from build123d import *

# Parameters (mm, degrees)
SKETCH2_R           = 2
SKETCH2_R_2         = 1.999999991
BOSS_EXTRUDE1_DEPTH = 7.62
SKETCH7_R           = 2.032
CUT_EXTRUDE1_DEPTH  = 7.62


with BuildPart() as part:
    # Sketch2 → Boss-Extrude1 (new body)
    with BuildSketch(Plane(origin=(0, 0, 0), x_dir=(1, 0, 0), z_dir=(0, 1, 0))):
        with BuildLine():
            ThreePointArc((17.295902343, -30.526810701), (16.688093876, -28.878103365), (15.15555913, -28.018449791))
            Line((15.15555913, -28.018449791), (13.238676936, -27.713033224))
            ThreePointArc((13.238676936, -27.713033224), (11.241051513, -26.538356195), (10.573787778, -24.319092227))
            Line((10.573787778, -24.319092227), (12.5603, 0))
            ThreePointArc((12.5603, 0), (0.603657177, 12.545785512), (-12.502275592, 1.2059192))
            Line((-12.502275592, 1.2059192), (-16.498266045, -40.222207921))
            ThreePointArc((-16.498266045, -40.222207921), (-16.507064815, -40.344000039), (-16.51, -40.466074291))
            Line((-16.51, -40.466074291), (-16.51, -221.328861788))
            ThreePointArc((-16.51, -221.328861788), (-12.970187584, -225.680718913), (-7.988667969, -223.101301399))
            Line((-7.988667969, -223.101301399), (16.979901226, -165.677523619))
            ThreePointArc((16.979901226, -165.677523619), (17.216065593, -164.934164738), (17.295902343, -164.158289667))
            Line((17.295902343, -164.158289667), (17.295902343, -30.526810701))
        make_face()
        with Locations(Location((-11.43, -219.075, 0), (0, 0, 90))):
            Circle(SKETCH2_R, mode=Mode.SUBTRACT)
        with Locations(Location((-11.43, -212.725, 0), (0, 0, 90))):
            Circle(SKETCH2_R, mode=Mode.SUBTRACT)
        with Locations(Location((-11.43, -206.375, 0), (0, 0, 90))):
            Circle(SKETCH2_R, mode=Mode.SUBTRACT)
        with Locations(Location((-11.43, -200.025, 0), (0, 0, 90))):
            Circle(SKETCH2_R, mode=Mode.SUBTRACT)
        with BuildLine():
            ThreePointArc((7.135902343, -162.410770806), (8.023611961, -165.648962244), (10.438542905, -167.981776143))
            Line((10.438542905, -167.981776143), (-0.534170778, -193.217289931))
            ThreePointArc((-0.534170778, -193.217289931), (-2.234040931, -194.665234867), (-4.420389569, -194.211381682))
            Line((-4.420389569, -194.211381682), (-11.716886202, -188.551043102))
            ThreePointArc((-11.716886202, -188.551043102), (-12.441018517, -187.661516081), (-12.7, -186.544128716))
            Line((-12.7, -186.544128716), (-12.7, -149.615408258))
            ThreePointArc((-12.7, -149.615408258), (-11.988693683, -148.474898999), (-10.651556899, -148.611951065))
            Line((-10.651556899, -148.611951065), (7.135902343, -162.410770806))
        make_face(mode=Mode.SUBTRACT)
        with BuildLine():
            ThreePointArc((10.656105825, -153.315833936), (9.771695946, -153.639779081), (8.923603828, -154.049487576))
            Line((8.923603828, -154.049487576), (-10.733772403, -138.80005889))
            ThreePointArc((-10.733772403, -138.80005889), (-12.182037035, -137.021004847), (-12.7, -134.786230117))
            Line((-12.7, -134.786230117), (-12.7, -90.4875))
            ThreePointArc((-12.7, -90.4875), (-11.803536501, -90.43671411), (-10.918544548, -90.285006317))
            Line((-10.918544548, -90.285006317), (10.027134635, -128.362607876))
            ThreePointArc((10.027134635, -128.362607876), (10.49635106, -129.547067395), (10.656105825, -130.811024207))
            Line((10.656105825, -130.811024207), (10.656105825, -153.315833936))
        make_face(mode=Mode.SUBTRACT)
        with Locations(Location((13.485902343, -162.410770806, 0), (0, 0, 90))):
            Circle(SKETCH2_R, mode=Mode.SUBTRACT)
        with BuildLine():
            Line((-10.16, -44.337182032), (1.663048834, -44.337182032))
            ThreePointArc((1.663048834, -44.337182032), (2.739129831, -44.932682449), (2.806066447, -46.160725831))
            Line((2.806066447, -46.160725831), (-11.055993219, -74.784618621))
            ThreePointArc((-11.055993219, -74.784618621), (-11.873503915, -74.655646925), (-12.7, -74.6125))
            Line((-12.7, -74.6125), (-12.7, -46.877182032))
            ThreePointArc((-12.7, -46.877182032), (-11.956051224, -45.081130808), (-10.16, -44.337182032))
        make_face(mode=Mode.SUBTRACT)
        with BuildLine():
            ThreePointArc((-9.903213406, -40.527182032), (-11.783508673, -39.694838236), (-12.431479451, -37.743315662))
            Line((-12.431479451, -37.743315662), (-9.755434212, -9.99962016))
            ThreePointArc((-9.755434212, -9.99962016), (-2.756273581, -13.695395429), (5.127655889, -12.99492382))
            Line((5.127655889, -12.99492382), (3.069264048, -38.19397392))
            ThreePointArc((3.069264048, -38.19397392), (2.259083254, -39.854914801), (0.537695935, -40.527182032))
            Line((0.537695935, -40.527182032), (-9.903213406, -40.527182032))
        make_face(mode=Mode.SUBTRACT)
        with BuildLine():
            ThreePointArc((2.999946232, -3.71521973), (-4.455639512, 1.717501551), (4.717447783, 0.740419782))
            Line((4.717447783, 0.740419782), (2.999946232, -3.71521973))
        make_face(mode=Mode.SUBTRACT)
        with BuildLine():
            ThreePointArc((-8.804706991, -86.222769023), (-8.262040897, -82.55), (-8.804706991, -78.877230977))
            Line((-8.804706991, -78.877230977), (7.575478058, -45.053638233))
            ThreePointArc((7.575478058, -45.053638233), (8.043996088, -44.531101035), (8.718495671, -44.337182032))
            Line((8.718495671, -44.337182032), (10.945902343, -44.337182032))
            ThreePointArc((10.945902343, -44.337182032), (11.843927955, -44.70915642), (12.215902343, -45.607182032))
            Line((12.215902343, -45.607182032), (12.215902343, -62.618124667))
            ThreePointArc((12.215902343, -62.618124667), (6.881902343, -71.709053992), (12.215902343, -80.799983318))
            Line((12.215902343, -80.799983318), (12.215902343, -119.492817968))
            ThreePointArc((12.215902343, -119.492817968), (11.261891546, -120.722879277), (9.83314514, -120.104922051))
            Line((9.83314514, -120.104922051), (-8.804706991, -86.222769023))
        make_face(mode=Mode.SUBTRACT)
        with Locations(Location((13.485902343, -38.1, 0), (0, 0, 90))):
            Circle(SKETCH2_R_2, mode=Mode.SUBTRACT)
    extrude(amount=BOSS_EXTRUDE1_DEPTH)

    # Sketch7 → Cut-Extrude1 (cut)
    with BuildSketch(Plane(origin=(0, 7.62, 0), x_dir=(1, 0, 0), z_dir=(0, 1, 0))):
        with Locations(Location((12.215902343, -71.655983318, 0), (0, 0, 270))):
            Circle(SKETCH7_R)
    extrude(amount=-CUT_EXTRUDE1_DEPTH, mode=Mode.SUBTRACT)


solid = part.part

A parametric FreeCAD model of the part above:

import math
import FreeCAD as App
import Part
import Sketcher
from FreeCAD import Vector
Q = App.Units.Quantity

doc = App.newDocument("Part")
body = doc.addObject("PartDesign::Body", "Body")

sketch1 = body.newObject("Sketcher::SketchObject", "Sketch")
sketch1.AttachmentSupport = (doc.getObject("XZ_Plane"), [""])
sketch1.MapMode = "FlatFace"
sketch1.addGeometry([
    Part.ArcOfCircle(Part.Circle(Vector(14.76, 30.53, 0), Vector(0, 0, 1), 2.54), math.radians(-81), math.radians(0)),
    Part.LineSegment(Vector(15.16, 28.02, 0), Vector(13.24, 27.71, 0)),
    Part.ArcOfCircle(Part.Circle(Vector(13.74, 24.58, 0), Vector(0, 0, 1), 3.18), math.radians(99), math.radians(185)),
    Part.LineSegment(Vector(10.57, 24.32, 0), Vector(12.56, 0, 0)),
    Part.ArcOfCircle(Part.Circle(Vector(0, 0, 0), Vector(0, 0, 1), 12.56), math.radians(-174), math.radians(0)),
    Part.LineSegment(Vector(-12.5, -1.21, 0), Vector(-16.5, 40.22, 0)),
    Part.ArcOfCircle(Part.Circle(Vector(-13.97, 40.47, 0), Vector(0, 0, 1), 2.54), math.radians(-180), math.radians(-174.49)),
    Part.LineSegment(Vector(-16.51, 40.47, 0), Vector(-16.51, 221.33, 0)),
    Part.ArcOfCircle(Part.Circle(Vector(-12.06, 221.33, 0), Vector(0, 0, 1), 4.45), math.radians(23), math.radians(180)),
    Part.LineSegment(Vector(-7.99, 223.1, 0), Vector(16.98, 165.68, 0)),
    Part.ArcOfCircle(Part.Circle(Vector(13.49, 164.16, 0), Vector(0, 0, 1), 3.81), math.radians(0), math.radians(24)),
    Part.LineSegment(Vector(17.3, 164.16, 0), Vector(17.3, 30.53, 0)),
    Part.Circle(Vector(-11.43, 219.07, 0), Vector(0, 0, 1), 2),
    Part.Circle(Vector(-11.43, 212.72, 0), Vector(0, 0, 1), 2),
    Part.Circle(Vector(-11.43, 206.38, 0), Vector(0, 0, 1), 2),
    Part.Circle(Vector(-11.43, 200.03, 0), Vector(0, 0, 1), 2),
    Part.LineSegment(Vector(-10.65, 148.61, 0), Vector(7.14, 162.41, 0)),
    Part.ArcOfCircle(Part.Circle(Vector(13.49, 162.41, 0), Vector(0, 0, 1), 6.35), math.radians(119), math.radians(180)),
    Part.LineSegment(Vector(10.44, 167.98, 0), Vector(-0.53, 193.22, 0)),
    Part.ArcOfCircle(Part.Circle(Vector(-2.86, 192.2, 0), Vector(0, 0, 1), 2.54), math.radians(24), math.radians(128)),
    Part.LineSegment(Vector(-4.42, 194.21, 0), Vector(-11.72, 188.55, 0)),
    Part.ArcOfCircle(Part.Circle(Vector(-10.16, 186.54, 0), Vector(0, 0, 1), 2.54), math.radians(128), math.radians(180)),
    Part.LineSegment(Vector(-12.7, 186.54, 0), Vector(-12.7, 149.62, 0)),
    Part.ArcOfCircle(Part.Circle(Vector(-11.43, 149.62, 0), Vector(0, 0, 1), 1.27), math.radians(180), math.radians(308)),
    Part.LineSegment(Vector(10.66, 130.81, 0), Vector(10.66, 153.32, 0)),
    Part.ArcOfCircle(Part.Circle(Vector(13.49, 162.41, 0), Vector(0, 0, 1), 9.52), math.radians(-118.62), math.radians(-107.28)),
    Part.LineSegment(Vector(8.92, 154.05, 0), Vector(-10.73, 138.8, 0)),
    Part.ArcOfCircle(Part.Circle(Vector(-7.62, 134.79, 0), Vector(0, 0, 1), 5.08), math.radians(128), math.radians(180)),
    Part.LineSegment(Vector(-12.7, 134.79, 0), Vector(-12.7, 90.49, 0)),
    Part.ArcOfCircle(Part.Circle(Vector(-12.7, 82.55, 0), Vector(0, 0, 1), 7.94), math.radians(77.03), math.radians(90)),
    Part.LineSegment(Vector(-10.92, 90.29, 0), Vector(10.03, 128.36, 0)),
    Part.ArcOfCircle(Part.Circle(Vector(5.58, 130.81, 0), Vector(0, 0, 1), 5.08), math.radians(-29), math.radians(0)),
    Part.Circle(Vector(13.49, 162.41, 0), Vector(0, 0, 1), 2),
    Part.ArcOfCircle(Part.Circle(Vector(-10.16, 46.88, 0), Vector(0, 0, 1), 2.54), math.radians(-180), math.radians(-90)),
    Part.LineSegment(Vector(-10.16, 44.34, 0), Vector(1.66, 44.34, 0)),
    Part.ArcOfCircle(Part.Circle(Vector(1.66, 45.61, 0), Vector(0, 0, 1), 1.27), math.radians(-90), math.radians(26)),
    Part.LineSegment(Vector(2.81, 46.16, 0), Vector(-11.06, 74.78, 0)),
    Part.ArcOfCircle(Part.Circle(Vector(-12.7, 82.55, 0), Vector(0, 0, 1), 7.94), math.radians(-90), math.radians(-78.05)),
    Part.LineSegment(Vector(-12.7, 74.61, 0), Vector(-12.7, 46.88, 0)),
    Part.LineSegment(Vector(0.54, 40.53, 0), Vector(-9.9, 40.53, 0)),
    Part.ArcOfCircle(Part.Circle(Vector(-9.9, 37.99, 0), Vector(0, 0, 1), 2.54), math.radians(90), math.radians(186)),
    Part.LineSegment(Vector(-12.43, 37.74, 0), Vector(-9.76, 10, 0)),
    Part.ArcOfCircle(Part.Circle(Vector(0, 0, 0), Vector(0, 0, 1), 13.97), math.radians(68), math.radians(134)),
    Part.LineSegment(Vector(5.13, 12.99, 0), Vector(3.07, 38.19, 0)),
    Part.ArcOfCircle(Part.Circle(Vector(0.54, 37.99, 0), Vector(0, 0, 1), 2.54), math.radians(5), math.radians(90)),
    Part.LineSegment(Vector(4.72, -0.74, 0), Vector(3, 3.72, 0)),
    Part.ArcOfCircle(Part.Circle(Vector(0, 0, 0), Vector(0, 0, 1), 4.78), math.radians(51), math.radians(351)),
    Part.LineSegment(Vector(9.83, 120.1, 0), Vector(-8.8, 86.22, 0)),
    Part.ArcOfCircle(Part.Circle(Vector(-20.96, 82.55, 0), Vector(0, 0, 1), 12.7), math.radians(-17), math.radians(17)),
    Part.LineSegment(Vector(-8.8, 78.88, 0), Vector(7.58, 45.05, 0)),
    Part.ArcOfCircle(Part.Circle(Vector(8.72, 45.61, 0), Vector(0, 0, 1), 1.27), math.radians(-154), math.radians(-90)),
    Part.LineSegment(Vector(8.72, 44.34, 0), Vector(10.95, 44.34, 0)),
    Part.ArcOfCircle(Part.Circle(Vector(10.95, 45.61, 0), Vector(0, 0, 1), 1.27), math.radians(-90), math.radians(0)),
    Part.LineSegment(Vector(12.22, 45.61, 0), Vector(12.22, 62.62, 0)),
    Part.ArcOfCircle(Part.Circle(Vector(17.3, 71.71, 0), Vector(0, 0, 1), 10.41), math.radians(119), math.radians(241)),
    Part.LineSegment(Vector(12.22, 80.8, 0), Vector(12.22, 119.49, 0)),
    Part.ArcOfCircle(Part.Circle(Vector(10.95, 119.49, 0), Vector(0, 0, 1), 1.27), math.radians(0), math.radians(151)),
    Part.Circle(Vector(13.49, 38.1, 0), Vector(0, 0, 1), 2),
], False)
sketch1.addConstraint([
    Sketcher.Constraint("Tangent", 0, 1, 1, 1),
    Sketcher.Constraint("Tangent", 1, 2, 2, 1),
    Sketcher.Constraint("Tangent", 2, 2, 3, 1),
    Sketcher.Constraint("Coincident", 3, 2, 4, 2),
    Sketcher.Constraint("Tangent", 4, 1, 5, 1),
    Sketcher.Constraint("Tangent", 5, 2, 6, 2),
    Sketcher.Constraint("Tangent", 6, 1, 7, 1),
    Sketcher.Constraint("Tangent", 7, 2, 8, 2),
    Sketcher.Constraint("Tangent", 8, 1, 9, 1),
    Sketcher.Constraint("Tangent", 9, 2, 10, 2),
    Sketcher.Constraint("Tangent", 10, 1, 11, 1),
    Sketcher.Constraint("Tangent", 11, 2, 0, 2),
    Sketcher.Constraint("Coincident", 16, 2, 17, 2),
    Sketcher.Constraint("Coincident", 17, 1, 18, 1),
    Sketcher.Constraint("Tangent", 18, 2, 19, 1),
    Sketcher.Constraint("Tangent", 19, 2, 20, 1),
    Sketcher.Constraint("Tangent", 20, 2, 21, 1),
    Sketcher.Constraint("Tangent", 21, 2, 22, 1),
    Sketcher.Constraint("Tangent", 22, 2, 23, 1),
    Sketcher.Constraint("Tangent", 23, 2, 16, 1),
    Sketcher.Constraint("Coincident", 24, 2, 25, 2),
    Sketcher.Constraint("Coincident", 25, 1, 26, 1),
    Sketcher.Constraint("Tangent", 26, 2, 27, 1),
    Sketcher.Constraint("Tangent", 27, 2, 28, 1),
    Sketcher.Constraint("Coincident", 28, 2, 29, 2),
    Sketcher.Constraint("Coincident", 29, 1, 30, 1),
    Sketcher.Constraint("Tangent", 30, 2, 31, 1),
    Sketcher.Constraint("Tangent", 31, 2, 24, 1),
    Sketcher.Constraint("Tangent", 33, 2, 34, 1),
    Sketcher.Constraint("Tangent", 34, 2, 35, 1),
    Sketcher.Constraint("Tangent", 35, 2, 36, 1),
    Sketcher.Constraint("Coincident", 36, 2, 37, 2),
    Sketcher.Constraint("Coincident", 37, 1, 38, 1),
    Sketcher.Constraint("Tangent", 38, 2, 33, 1),
    Sketcher.Constraint("Tangent", 39, 2, 40, 1),
    Sketcher.Constraint("Tangent", 40, 2, 41, 1),
    Sketcher.Constraint("Coincident", 41, 2, 42, 2),
    Sketcher.Constraint("Coincident", 42, 1, 43, 1),
    Sketcher.Constraint("Tangent", 43, 2, 44, 1),
    Sketcher.Constraint("Tangent", 44, 2, 39, 1),
    Sketcher.Constraint("Coincident", 45, 1, 46, 2),
    Sketcher.Constraint("Coincident", 46, 1, 45, 2),
    Sketcher.Constraint("Coincident", 47, 2, 48, 2),
    Sketcher.Constraint("Coincident", 48, 1, 49, 1),
    Sketcher.Constraint("Tangent", 49, 2, 50, 1),
    Sketcher.Constraint("Tangent", 50, 2, 51, 1),
    Sketcher.Constraint("Tangent", 51, 2, 52, 1),
    Sketcher.Constraint("Tangent", 52, 2, 53, 1),
    Sketcher.Constraint("Coincident", 53, 2, 54, 2),
    Sketcher.Constraint("Coincident", 54, 1, 55, 1),
    Sketcher.Constraint("Tangent", 55, 2, 56, 1),
    Sketcher.Constraint("Tangent", 56, 2, 47, 1),
    Sketcher.Constraint("Vertical", 7),
    Sketcher.Constraint("Vertical", 11),
    Sketcher.Constraint("Vertical", 22),
    Sketcher.Constraint("Vertical", 24),
    Sketcher.Constraint("Vertical", 28),
    Sketcher.Constraint("Horizontal", 34),
    Sketcher.Constraint("Vertical", 38),
    Sketcher.Constraint("Horizontal", 39),
    Sketcher.Constraint("Horizontal", 51),
    Sketcher.Constraint("Vertical", 53),
    Sketcher.Constraint("Vertical", 55),
    Sketcher.Constraint("Coincident", 4, 3, -1, 1),
    Sketcher.Constraint("Coincident", 42, 3, -1, 1),
    Sketcher.Constraint("Coincident", 46, 3, -1, 1),
    Sketcher.Constraint("Coincident", 25, 3, 17, 3),
    Sketcher.Constraint("Coincident", 32, 3, 17, 3),
    Sketcher.Constraint("Coincident", 37, 3, 29, 3),
    Sketcher.Constraint("Equal", 0, 6),
    Sketcher.Constraint("Equal", 12, 13),
    Sketcher.Constraint("Equal", 13, 14),
    Sketcher.Constraint("Equal", 14, 15),
    Sketcher.Constraint("Equal", 6, 19),
    Sketcher.Constraint("Equal", 19, 21),
    Sketcher.Constraint("Equal", 27, 31),
    Sketcher.Constraint("Equal", 15, 32),
    Sketcher.Constraint("Equal", 21, 33),
    Sketcher.Constraint("Equal", 23, 35),
    Sketcher.Constraint("Equal", 29, 37),
    Sketcher.Constraint("Equal", 33, 40),
    Sketcher.Constraint("Equal", 40, 44),
    Sketcher.Constraint("Equal", 35, 50),
    Sketcher.Constraint("Equal", 50, 52),
    Sketcher.Constraint("Equal", 52, 56),
    Sketcher.Constraint("Equal", 32, 57),
    Sketcher.Constraint("PointOnObject", 3, 2, -1),
    Sketcher.Constraint("Parallel", 9, 18),
    Sketcher.Constraint("Parallel", 16, 20),
    Sketcher.Constraint("Parallel", 20, 26),
    Sketcher.Constraint("Parallel", 5, 41),
    Sketcher.Constraint("Parallel", 3, 43),
    Sketcher.Constraint("Parallel", 30, 47),
    Sketcher.Constraint("Parallel", 36, 49),
    Sketcher.Constraint("Horizontal", 37, 3, 48, 3),
    Sketcher.Constraint("Horizontal", 35, 3, 50, 3),
    Sketcher.Constraint("Horizontal", 32, 3, 16, 2),
    Sketcher.Constraint("Vertical", 12, 3, 13, 3),
    Sketcher.Constraint("Vertical", 13, 3, 14, 3),
    Sketcher.Constraint("Vertical", 14, 3, 15, 3),
    Sketcher.Constraint("Vertical", 10, 3, 17, 3),
    Sketcher.Constraint("Vertical", 15, 3, 23, 3),
    Sketcher.Constraint("Vertical", 21, 3, 33, 3),
    Sketcher.Constraint("Vertical", 52, 3, 56, 3),
    Sketcher.Constraint("Vertical", 32, 3, 57, 3),
    Sketcher.Constraint("Vertical", 54, 3, 10, 1),
    Sketcher.Constraint("Vertical", 37, 3, 21, 2),
    Sketcher.Constraint("Vertical", 22, 2, 27, 2),
    Sketcher.Constraint("Vertical", 47, 2, 48, 1),
    Sketcher.Constraint("Radius", 0, Q("0.1 in")),
    Sketcher.Constraint("Radius", 27, Q("0.2 in")),
    Sketcher.Constraint("Radius", 48, Q("0.5 in")),
    Sketcher.Constraint("Radius", 10, Q("0.15 in")),
    Sketcher.Constraint("Radius", 17, Q("0.25 in")),
    Sketcher.Constraint("Radius", 23, Q("0.05 in")),
    Sketcher.Constraint("Radius", 42, Q("0.55 in")),
    Sketcher.Constraint("Radius", 54, Q("0.41 in")),
    Sketcher.Constraint("Radius", 2, Q("0.125 in")),
    Sketcher.Constraint("Radius", 8, Q("0.175 in")),
    Sketcher.Constraint("Radius", 25, Q("0.375 in")),
    Sketcher.Constraint("Radius", 29, Q("0.3125 in")),
    Sketcher.Constraint("Radius", 46, Q("0.188 in")),
    Sketcher.Constraint("DistanceX", 21, 3, -1, 1, Q("0.4 in")),
    Sketcher.Constraint("DistanceY", -1, 1, 57, 3, Q("1.5 in")),
    Sketcher.Constraint("Angle", 9, Q("-66.5 deg")),
    Sketcher.Constraint("Radius", 4, Q("0.4945 in")),
    Sketcher.Constraint("Diameter", 12, Q("4 mm")),
    Sketcher.Constraint("DistanceX", 6, 3, -1, 1, Q("0.55 in")),
    Sketcher.Constraint("DistanceY", -1, 1, 29, 3, Q("3.25 in")),
    Sketcher.Constraint("Angle", 45, Q("111.08 deg")),
    Sketcher.Constraint("Distance", 45, Q("0.188 in")),
    Sketcher.Constraint("DistanceY", -1, 1, 12, 3, Q("8.625 in")),
    Sketcher.Constraint("DistanceY", -1, 1, 13, 3, Q("8.375 in")),
    Sketcher.Constraint("DistanceY", -1, 1, 14, 3, Q("8.125 in")),
    Sketcher.Constraint("DistanceY", -1, 1, 15, 3, Q("7.875 in")),
    Sketcher.Constraint("DistanceX", -1, 1, 9, 2, Q("0.6685 in")),
    Sketcher.Constraint("Distance", 5, Q("41.6204 mm")),
    Sketcher.Constraint("DistanceX", 34, 1, 34, 2, Q("11.823049 mm")),
    Sketcher.Constraint("DistanceX", 39, 2, 39, 1, Q("10.440909 mm")),
    Sketcher.Constraint("DistanceY", 11, 2, 11, 1, Q("133.631479 mm")),
    Sketcher.Constraint("DistanceY", 22, 2, 22, 1, Q("36.92872 mm")),
    Sketcher.Constraint("DistanceY", 24, 1, 24, 2, Q("22.50481 mm")),
    Sketcher.Constraint("DistanceY", 28, 2, 28, 1, Q("44.29873 mm")),
    Sketcher.Constraint("DistanceY", -1, 1, 8, 1, Q("223.101301 mm")),
    Sketcher.Constraint("Distance", 1, Q("1.941061 mm")),
    Sketcher.Constraint("Distance", 3, Q("24.400092 mm")),
    Sketcher.Constraint("Distance", 18, Q("27.517842 mm")),
    Sketcher.Constraint("Distance", 43, Q("25.28298 mm")),
    Sketcher.Constraint("Distance", 47, Q("38.670012 mm")),
    Sketcher.Constraint("Distance", 49, Q("37.581191 mm")),
    Sketcher.Constraint("DistanceX", 51, 1, 51, 2, Q("2.227407 mm")),
    Sketcher.Constraint("DistanceY", 38, 2, 38, 1, Q("27.735318 mm")),
    Sketcher.Constraint("DistanceY", 53, 1, 53, 2, Q("17.010943 mm")),
    Sketcher.Constraint("DistanceY", 55, 1, 55, 2, Q("38.692835 mm")),
    Sketcher.Constraint("DistanceY", -1, 1, 17, 3, Q("162.410771 mm")),
    Sketcher.Constraint("DistanceY", -1, 1, 21, 3, Q("186.544129 mm")),
    Sketcher.Constraint("DistanceX", 48, 3, -1, 1, Q("20.962041 mm")),
    Sketcher.Constraint("DistanceX", 40, 2, -1, 1, Q("12.431479 mm")),
    Sketcher.Constraint("Distance", 30, Q("43.458316 mm")),
])
pad1 = body.newObject("PartDesign::Pad", "Pad")
pad1.Profile = sketch1
pad1.Length = Q("0.3 in")
pad1.Reversed = True

sketch2 = body.newObject("Sketcher::SketchObject", "Sketch001")
sketch2.AttachmentSupport = (doc.getObject("XZ_Plane"), [""])
sketch2.MapMode = "FlatFace"
sketch2.AttachmentOffset = App.Placement(Vector(0, 0, -0.3 * 25.4), App.Rotation())
sketch2.addGeometry(Part.Circle(Vector(12.2, 71.7, 0), Vector(0, 0, 1), 2), False)
sketch2.addConstraint([
    Sketcher.Constraint("Diameter", 0, Q("0.16 in")),
    Sketcher.Constraint("DistanceX", -1, 1, 0, 3, Q("12.215902 mm")),
    Sketcher.Constraint("DistanceY", -1, 1, 0, 3, Q("71.655983 mm")),
])
pocket1 = body.newObject("PartDesign::Pocket", "Pocket")
pocket1.Profile = sketch2
pocket1.Length = Q("0.3 in")
pocket1.Reversed = True

doc.recompute()
